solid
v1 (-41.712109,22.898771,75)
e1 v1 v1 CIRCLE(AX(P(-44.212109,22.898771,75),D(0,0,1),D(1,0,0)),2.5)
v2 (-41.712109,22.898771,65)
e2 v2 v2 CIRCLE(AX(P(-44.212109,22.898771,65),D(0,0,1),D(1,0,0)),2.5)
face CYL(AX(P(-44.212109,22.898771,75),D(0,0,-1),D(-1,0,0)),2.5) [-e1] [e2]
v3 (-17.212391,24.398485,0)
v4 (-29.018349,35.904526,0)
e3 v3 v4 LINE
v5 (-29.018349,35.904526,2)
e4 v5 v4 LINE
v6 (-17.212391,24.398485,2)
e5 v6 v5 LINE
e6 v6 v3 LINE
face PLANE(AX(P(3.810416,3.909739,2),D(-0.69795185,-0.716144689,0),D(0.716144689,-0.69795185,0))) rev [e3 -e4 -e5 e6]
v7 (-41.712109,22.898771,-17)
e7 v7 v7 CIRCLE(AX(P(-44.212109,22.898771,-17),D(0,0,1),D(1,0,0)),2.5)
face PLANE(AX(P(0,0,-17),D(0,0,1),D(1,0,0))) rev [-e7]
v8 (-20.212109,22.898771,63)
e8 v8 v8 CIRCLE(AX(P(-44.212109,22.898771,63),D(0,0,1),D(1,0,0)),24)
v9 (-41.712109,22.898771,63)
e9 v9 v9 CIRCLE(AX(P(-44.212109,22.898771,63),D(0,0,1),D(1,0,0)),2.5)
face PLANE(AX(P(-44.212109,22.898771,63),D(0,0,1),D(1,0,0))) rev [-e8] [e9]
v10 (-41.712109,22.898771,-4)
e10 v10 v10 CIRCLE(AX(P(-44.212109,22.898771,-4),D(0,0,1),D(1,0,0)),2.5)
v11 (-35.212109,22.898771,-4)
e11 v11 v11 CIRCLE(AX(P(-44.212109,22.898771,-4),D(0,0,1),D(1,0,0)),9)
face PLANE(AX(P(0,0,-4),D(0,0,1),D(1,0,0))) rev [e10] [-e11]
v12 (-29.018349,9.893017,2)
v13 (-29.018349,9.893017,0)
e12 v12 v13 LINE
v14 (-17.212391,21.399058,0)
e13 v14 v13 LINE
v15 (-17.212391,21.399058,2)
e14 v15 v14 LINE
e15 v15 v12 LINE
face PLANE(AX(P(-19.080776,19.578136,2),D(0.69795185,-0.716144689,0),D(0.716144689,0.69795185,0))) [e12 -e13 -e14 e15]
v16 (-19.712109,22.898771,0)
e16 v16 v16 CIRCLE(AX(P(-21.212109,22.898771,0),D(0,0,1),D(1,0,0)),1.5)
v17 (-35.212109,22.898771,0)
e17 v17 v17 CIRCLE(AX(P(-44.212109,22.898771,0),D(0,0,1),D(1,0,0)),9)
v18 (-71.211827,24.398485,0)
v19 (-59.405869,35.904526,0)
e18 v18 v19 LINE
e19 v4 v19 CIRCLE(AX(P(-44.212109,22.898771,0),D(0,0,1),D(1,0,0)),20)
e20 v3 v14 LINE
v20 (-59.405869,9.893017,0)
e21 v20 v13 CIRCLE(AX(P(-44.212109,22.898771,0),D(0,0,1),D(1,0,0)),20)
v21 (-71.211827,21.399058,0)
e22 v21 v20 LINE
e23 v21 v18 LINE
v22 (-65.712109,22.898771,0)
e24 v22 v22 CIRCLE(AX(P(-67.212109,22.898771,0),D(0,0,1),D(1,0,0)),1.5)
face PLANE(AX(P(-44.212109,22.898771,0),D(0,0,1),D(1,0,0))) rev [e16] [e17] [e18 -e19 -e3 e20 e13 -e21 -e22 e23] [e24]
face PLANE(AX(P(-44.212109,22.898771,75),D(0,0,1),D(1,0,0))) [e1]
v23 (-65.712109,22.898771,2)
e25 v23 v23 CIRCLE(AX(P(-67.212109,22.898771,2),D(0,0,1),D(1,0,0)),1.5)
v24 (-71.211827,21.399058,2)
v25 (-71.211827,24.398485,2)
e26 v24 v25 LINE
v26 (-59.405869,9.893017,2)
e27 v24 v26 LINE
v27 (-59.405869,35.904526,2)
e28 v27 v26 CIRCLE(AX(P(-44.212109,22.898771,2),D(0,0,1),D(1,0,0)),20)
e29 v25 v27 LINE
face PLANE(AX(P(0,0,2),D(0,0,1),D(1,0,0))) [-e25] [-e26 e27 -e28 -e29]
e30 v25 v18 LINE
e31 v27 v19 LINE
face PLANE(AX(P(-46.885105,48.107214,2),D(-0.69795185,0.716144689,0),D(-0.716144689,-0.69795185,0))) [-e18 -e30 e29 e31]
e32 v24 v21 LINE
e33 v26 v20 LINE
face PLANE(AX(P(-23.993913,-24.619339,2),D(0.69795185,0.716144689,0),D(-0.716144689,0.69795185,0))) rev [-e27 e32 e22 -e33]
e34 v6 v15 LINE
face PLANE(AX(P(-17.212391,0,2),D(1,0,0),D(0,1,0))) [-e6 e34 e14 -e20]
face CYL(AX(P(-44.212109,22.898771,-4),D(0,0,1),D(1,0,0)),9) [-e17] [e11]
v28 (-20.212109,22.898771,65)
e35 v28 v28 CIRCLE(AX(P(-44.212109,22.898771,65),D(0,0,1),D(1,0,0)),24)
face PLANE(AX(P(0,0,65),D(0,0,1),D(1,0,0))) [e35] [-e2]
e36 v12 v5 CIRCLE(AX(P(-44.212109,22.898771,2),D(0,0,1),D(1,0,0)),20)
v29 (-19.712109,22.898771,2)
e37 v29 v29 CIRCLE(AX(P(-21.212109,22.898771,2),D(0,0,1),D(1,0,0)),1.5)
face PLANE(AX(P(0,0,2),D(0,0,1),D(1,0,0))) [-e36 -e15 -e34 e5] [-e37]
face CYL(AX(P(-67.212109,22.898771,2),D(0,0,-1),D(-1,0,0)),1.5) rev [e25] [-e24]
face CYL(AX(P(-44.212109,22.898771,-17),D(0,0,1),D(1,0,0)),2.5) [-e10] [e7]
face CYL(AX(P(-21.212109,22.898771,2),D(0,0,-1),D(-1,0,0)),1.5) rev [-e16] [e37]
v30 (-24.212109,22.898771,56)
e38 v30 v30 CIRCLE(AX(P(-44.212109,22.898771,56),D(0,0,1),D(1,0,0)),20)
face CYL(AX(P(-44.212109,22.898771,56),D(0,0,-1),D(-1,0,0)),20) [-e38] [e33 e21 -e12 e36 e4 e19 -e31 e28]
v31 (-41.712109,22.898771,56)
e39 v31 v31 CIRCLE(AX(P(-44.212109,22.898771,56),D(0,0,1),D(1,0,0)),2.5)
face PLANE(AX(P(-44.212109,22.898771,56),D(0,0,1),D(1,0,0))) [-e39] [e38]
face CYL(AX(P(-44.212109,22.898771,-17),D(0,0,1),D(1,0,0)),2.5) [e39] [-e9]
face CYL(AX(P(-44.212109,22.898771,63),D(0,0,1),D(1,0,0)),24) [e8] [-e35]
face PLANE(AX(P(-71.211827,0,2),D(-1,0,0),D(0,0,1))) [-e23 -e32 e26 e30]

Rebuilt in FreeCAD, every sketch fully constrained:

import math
import FreeCAD as App
import Part
import Sketcher

V = App.Vector

doc = App.newDocument("Part")
params = doc.addObject("Spreadsheet::Sheet", "Params")
for row, (alias, value) in enumerate([
    ("sketch1_diameter", "40 mm"),
    ("pad1_length", "56 mm"),
    ("sketch2_diameter", "3 mm"),
    ("sketch2_radius", "20 mm"),
    ("pad2_length", "2 mm"),
    ("sketch3_diameter", "18 mm"),
    ("sketch3_diameter2", "5 mm"),
    ("pad3_length", "4 mm"),
    ("sketch4_diameter", "5 mm"),
    ("pad4_length", "65 mm"),
    ("pad4_length2", "17 mm"),
    ("sketch5_diameter", "48 mm"),
    ("sketch5_diameter2", "5 mm"),
    ("pad5_length", "2 mm"),
    ("sketch6_diameter", "5 mm"),
    ("pad6_length", "10 mm"),
], start=1):
    params.set(f"A{row}", alias)
    params.set(f"B{row}", "=" + value)
    params.setAlias(f"B{row}", alias)

body = doc.addObject("PartDesign::Body", "Body")

# Sketch on XY plane
sketch1 = doc.addObject("Sketcher::SketchObject", "Sketch")
body.addObject(sketch1)
sketch1.AttachmentSupport = (doc.XY_Plane, [""])
sketch1.MapMode = "FlatFace"
sketch1.addGeometry(Part.Circle(V(-44.212109, 22.898771, 0), V(0, 0, 1), 20), False)
sketch1.addConstraint(Sketcher.Constraint("Diameter", 0, 40.0))
sketch1.addConstraint(Sketcher.Constraint("DistanceX", 0, 3, -1, 1, 44.212109))
sketch1.addConstraint(Sketcher.Constraint("DistanceY", -1, 1, 0, 3, 22.898771))
sketch1.setExpression("Constraints[0]", "Params.sketch1_diameter")
pad1 = doc.addObject("PartDesign::Pad", "Pad")
body.addObject(pad1)
pad1.Profile = sketch1
pad1.setExpression("Length", "Params.pad1_length")

# Sketch on XY plane
sketch2 = doc.addObject("Sketcher::SketchObject", "Sketch001")
body.addObject(sketch2)
sketch2.AttachmentSupport = (doc.XY_Plane, [""])
sketch2.MapMode = "FlatFace"
sketch2.addGeometry(Part.LineSegment(V(-71.211827, 24.398485, 0), V(-71.211827, 21.399058, 0)), False)
sketch2.addGeometry(Part.LineSegment(V(-71.211827, 21.399058, 0), V(-59.405869, 9.893017, 0)), False)
sketch2.addGeometry(Part.ArcOfCircle(Part.Circle(V(-44.212109, 22.898771, 0), V(0, 0, 1), 20), math.radians(139.436701), math.radians(220.563299)), False)
sketch2.addGeometry(Part.LineSegment(V(-59.405869, 35.904526, 0), V(-71.211827, 24.398485, 0)), False)
sketch2.addGeometry(Part.Circle(V(-67.212109, 22.898771, 0), V(0, 0, 1), 1.5), False)
sketch2.addGeometry(Part.ArcOfCircle(Part.Circle(V(-44.212109, 22.898771, 0), V(0, 0, 1), 20), math.radians(-40.563299), math.radians(40.563299)), False)
sketch2.addGeometry(Part.LineSegment(V(-29.018349, 9.893017, 0), V(-17.212391, 21.399058, 0)), False)
sketch2.addGeometry(Part.LineSegment(V(-17.212391, 21.399058, 0), V(-17.212391, 24.398485, 0)), False)
sketch2.addGeometry(Part.LineSegment(V(-17.212391, 24.398485, 0), V(-29.018349, 35.904526, 0)), False)
sketch2.addGeometry(Part.Circle(V(-21.212109, 22.898771, 0), V(0, 0, 1), 1.5), False)
sketch2.addConstraint(Sketcher.Constraint("Coincident", 0, 2, 1, 1))
sketch2.addConstraint(Sketcher.Constraint("Coincident", 1, 2, 2, 2))
sketch2.addConstraint(Sketcher.Constraint("Coincident", 2, 1, 3, 1))
sketch2.addConstraint(Sketcher.Constraint("Coincident", 3, 2, 0, 1))
sketch2.addConstraint(Sketcher.Constraint("Coincident", 5, 1, 6, 1))
sketch2.addConstraint(Sketcher.Constraint("Coincident", 6, 2, 7, 1))
sketch2.addConstraint(Sketcher.Constraint("Coincident", 7, 2, 8, 1))
sketch2.addConstraint(Sketcher.Constraint("Coincident", 8, 2, 5, 2))
sketch2.addConstraint(Sketcher.Constraint("Vertical", 0))
sketch2.addConstraint(Sketcher.Constraint("Vertical", 7))
sketch2.addConstraint(Sketcher.Constraint("Coincident", 5, 3, 2, 3))
sketch2.addConstraint(Sketcher.Constraint("Equal", 2, 5))
sketch2.addConstraint(Sketcher.Constraint("Equal", 4, 9))
sketch2.addConstraint(Sketcher.Constraint("Parallel", 3, 6))
sketch2.addConstraint(Sketcher.Constraint("Parallel", 1, 8))
sketch2.addConstraint(Sketcher.Constraint("Horizontal", 2, 3, 4, 3))
sketch2.addConstraint(Sketcher.Constraint("Horizontal", 5, 3, 9, 3))
sketch2.addConstraint(Sketcher.Constraint("Horizontal", 1, 2, 5, 1))
sketch2.addConstraint(Sketcher.Constraint("Horizontal", 0, 2, 6, 2))
sketch2.addConstraint(Sketcher.Constraint("Horizontal", 3, 2, 7, 2))
sketch2.addConstraint(Sketcher.Constraint("Horizontal", 2, 1, 8, 2))
sketch2.addConstraint(Sketcher.Constraint("Vertical", 1, 2, 2, 1))
sketch2.addConstraint(Sketcher.Constraint("Diameter", 4, 3.0))
sketch2.addConstraint(Sketcher.Constraint("Radius", 2, 20.0))
sketch2.addConstraint(Sketcher.Constraint("DistanceX", 4, 3, 2, 3, 23.0))
sketch2.addConstraint(Sketcher.Constraint("DistanceX", 5, 3, 9, 3, 23.0))
sketch2.addConstraint(Sketcher.Constraint("DistanceY", 0, 2, 0, 1, 2.999427))
sketch2.addConstraint(Sketcher.Constraint("DistanceX", 2, 3, -1, 1, 44.212109))
sketch2.addConstraint(Sketcher.Constraint("DistanceY", -1, 1, 2, 3, 22.898771))
sketch2.addConstraint(Sketcher.Constraint("DistanceX", 1, 2, -1, 1, 59.405869))
sketch2.addConstraint(Sketcher.Constraint("DistanceX", 6, 2, -1, 1, 17.212391))
sketch2.setExpression("Constraints[22]", "Params.sketch2_diameter")
sketch2.setExpression("Constraints[23]", "Params.sketch2_radius")
pad2 = doc.addObject("PartDesign::Pad", "Pad001")
body.addObject(pad2)
pad2.Profile = sketch2
pad2.setExpression("Length", "Params.pad2_length")

# Sketch on XY plane
sketch3 = doc.addObject("Sketcher::SketchObject", "Sketch002")
body.addObject(sketch3)
sketch3.AttachmentSupport = (doc.XY_Plane, [""])
sketch3.MapMode = "FlatFace"
sketch3.addGeometry(Part.Circle(V(-44.212109, 22.898771, 0), V(0, 0, 1), 9), False)
sketch3.addGeometry(Part.Circle(V(-44.212109, 22.898771, 0), V(0, 0, 1), 2.5), False)
sketch3.addConstraint(Sketcher.Constraint("Coincident", 1, 3, 0, 3))
sketch3.addConstraint(Sketcher.Constraint("Diameter", 0, 18.0))
sketch3.addConstraint(Sketcher.Constraint("Diameter", 1, 5.0))
sketch3.addConstraint(Sketcher.Constraint("DistanceX", 0, 3, -1, 1, 44.212109))
sketch3.addConstraint(Sketcher.Constraint("DistanceY", -1, 1, 0, 3, 22.898771))
sketch3.setExpression("Constraints[1]", "Params.sketch3_diameter")
sketch3.setExpression("Constraints[2]", "Params.sketch3_diameter2")
pad3 = doc.addObject("PartDesign::Pad", "Pad002")
body.addObject(pad3)
pad3.Profile = sketch3
pad3.setExpression("Length", "Params.pad3_length")
pad3.Reversed = True

# Sketch on XY plane
sketch4 = doc.addObject("Sketcher::SketchObject", "Sketch003")
body.addObject(sketch4)
sketch4.AttachmentSupport = (doc.XY_Plane, [""])
sketch4.MapMode = "FlatFace"
sketch4.addGeometry(Part.Circle(V(-44.212109, 22.898771, 0), V(0, 0, 1), 2.5), False)
sketch4.addConstraint(Sketcher.Constraint("Diameter", 0, 5.0))
sketch4.addConstraint(Sketcher.Constraint("DistanceX", 0, 3, -1, 1, 44.212109))
sketch4.addConstraint(Sketcher.Constraint("DistanceY", -1, 1, 0, 3, 22.898771))
sketch4.setExpression("Constraints[0]", "Params.sketch4_diameter")
pad4 = doc.addObject("PartDesign::Pad", "Pad003")
body.addObject(pad4)
pad4.Profile = sketch4
pad4.Type = "TwoLengths"
pad4.setExpression("Length", "Params.pad4_length")
pad4.setExpression("Length2", "Params.pad4_length2")

# Sketch on XY plane
sketch5 = doc.addObject("Sketcher::SketchObject", "Sketch004")
body.addObject(sketch5)
sketch5.AttachmentSupport = (doc.XY_Plane, [""])
sketch5.MapMode = "FlatFace"
sketch5.AttachmentOffset = App.Placement(V(0, 0, 65), App.Rotation())
sketch5.addGeometry(Part.Circle(V(-44.212109, 22.898771, 0), V(0, 0, 1), 24), False)
sketch5.addGeometry(Part.Circle(V(-44.212109, 22.898771, 0), V(0, 0, 1), 2.5), False)
sketch5.addConstraint(Sketcher.Constraint("Coincident", 1, 3, 0, 3))
sketch5.addConstraint(Sketcher.Constraint("Diameter", 0, 48.0))
sketch5.addConstraint(Sketcher.Constraint("Diameter", 1, 5.0))
sketch5.addConstraint(Sketcher.Constraint("DistanceX", 0, 3, -1, 1, 44.212109))
sketch5.addConstraint(Sketcher.Constraint("DistanceY", -1, 1, 0, 3, 22.898771))
sketch5.setExpression("Constraints[1]", "Params.sketch5_diameter")
sketch5.setExpression("Constraints[2]", "Params.sketch5_diameter2")
pad5 = doc.addObject("PartDesign::Pad", "Pad004")
body.addObject(pad5)
pad5.Profile = sketch5
pad5.setExpression("Length", "Params.pad5_length")
pad5.Reversed = True

# Sketch on XY plane
sketch6 = doc.addObject("Sketcher::SketchObject", "Sketch005")
body.addObject(sketch6)
sketch6.AttachmentSupport = (doc.XY_Plane, [""])
sketch6.MapMode = "FlatFace"
sketch6.AttachmentOffset = App.Placement(V(0, 0, 65), App.Rotation())
sketch6.addGeometry(Part.Circle(V(-44.212109, 22.898771, 0), V(0, 0, 1), 2.5), False)
sketch6.addConstraint(Sketcher.Constraint("Diameter", 0, 5.0))
sketch6.addConstraint(Sketcher.Constraint("DistanceX", 0, 3, -1, 1, 44.212109))
sketch6.addConstraint(Sketcher.Constraint("DistanceY", -1, 1, 0, 3, 22.898771))
sketch6.setExpression("Constraints[0]", "Params.sketch6_diameter")
pad6 = doc.addObject("PartDesign::Pad", "Pad005")
body.addObject(pad6)
pad6.Profile = sketch6
pad6.setExpression("Length", "Params.pad6_length")

doc.recompute()
